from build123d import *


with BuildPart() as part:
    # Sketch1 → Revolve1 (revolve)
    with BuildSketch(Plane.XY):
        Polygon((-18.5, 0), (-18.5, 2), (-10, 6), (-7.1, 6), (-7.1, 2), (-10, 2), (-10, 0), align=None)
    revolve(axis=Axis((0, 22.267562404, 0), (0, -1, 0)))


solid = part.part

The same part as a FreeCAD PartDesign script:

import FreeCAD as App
import Part
import Sketcher
Q = App.Units.Quantity


def add_polygon(sketch, points):
    """Adds a closed chain of lines whose ends are joined by coincident constraints."""
    first, n = sketch.GeometryCount, len(points)
    for a, b in zip(points, points[1:] + points[:1]):
        sketch.addGeometry(Part.LineSegment(App.Vector(*a, 0), App.Vector(*b, 0)), False)
    for i in range(n):
        sketch.addConstraint(Sketcher.Constraint("Coincident", first + i, 2, first + (i + 1) % n, 1))

doc = App.newDocument("Part")
body = doc.addObject("PartDesign::Body", "Body")

sketch1 = body.newObject("Sketcher::SketchObject", "Sketch")
sketch1.AttachmentSupport = (doc.getObject("XY_Plane"), [""])
sketch1.MapMode = "FlatFace"
add_polygon(sketch1, [(-18.5, 2), (-18.5, 0), (-10, 0), (-10, 2), (-7.1, 2), (-7.1, 6), (-10, 6)])
sketch1.addConstraint(Sketcher.Constraint("Vertical", 0))
sketch1.addConstraint(Sketcher.Constraint("Horizontal", 1))
sketch1.addConstraint(Sketcher.Constraint("Vertical", 2))
sketch1.addConstraint(Sketcher.Constraint("Horizontal", 3))
sketch1.addConstraint(Sketcher.Constraint("Vertical", 4))
sketch1.addConstraint(Sketcher.Constraint("Horizontal", 5))
sketch1.addConstraint(Sketcher.Constraint("PointOnObject", 0, 2, -1))
sketch1.addConstraint(Sketcher.Constraint("Horizontal", 3, 2, 6, 2))
sketch1.addConstraint(Sketcher.Constraint("Vertical", 2, 2, 5, 2))
sketch1.addConstraint(Sketcher.Constraint("DistanceY", 0, 2, 0, 1, Q("2 mm")))
sketch1.addConstraint(Sketcher.Constraint("DistanceY", 4, 1, 4, 2, Q("4 mm")))
sketch1.addConstraint(Sketcher.Constraint("DistanceX", 1, 1, 1, 2, Q("8.5 mm")))
sketch1.addConstraint(Sketcher.Constraint("DistanceX", 3, 1, 3, 2, Q("2.9 mm")))
sketch1.addConstraint(Sketcher.Constraint("DistanceX", 1, 2, -1, 1, Q("10 mm")))
revolution = body.newObject("PartDesign::Revolution", "Revolution")
revolution.Profile = sketch1
revolution.ReferenceAxis = (sketch1, ["V_Axis"])
revolution.Angle = 360

doc.recompute()
